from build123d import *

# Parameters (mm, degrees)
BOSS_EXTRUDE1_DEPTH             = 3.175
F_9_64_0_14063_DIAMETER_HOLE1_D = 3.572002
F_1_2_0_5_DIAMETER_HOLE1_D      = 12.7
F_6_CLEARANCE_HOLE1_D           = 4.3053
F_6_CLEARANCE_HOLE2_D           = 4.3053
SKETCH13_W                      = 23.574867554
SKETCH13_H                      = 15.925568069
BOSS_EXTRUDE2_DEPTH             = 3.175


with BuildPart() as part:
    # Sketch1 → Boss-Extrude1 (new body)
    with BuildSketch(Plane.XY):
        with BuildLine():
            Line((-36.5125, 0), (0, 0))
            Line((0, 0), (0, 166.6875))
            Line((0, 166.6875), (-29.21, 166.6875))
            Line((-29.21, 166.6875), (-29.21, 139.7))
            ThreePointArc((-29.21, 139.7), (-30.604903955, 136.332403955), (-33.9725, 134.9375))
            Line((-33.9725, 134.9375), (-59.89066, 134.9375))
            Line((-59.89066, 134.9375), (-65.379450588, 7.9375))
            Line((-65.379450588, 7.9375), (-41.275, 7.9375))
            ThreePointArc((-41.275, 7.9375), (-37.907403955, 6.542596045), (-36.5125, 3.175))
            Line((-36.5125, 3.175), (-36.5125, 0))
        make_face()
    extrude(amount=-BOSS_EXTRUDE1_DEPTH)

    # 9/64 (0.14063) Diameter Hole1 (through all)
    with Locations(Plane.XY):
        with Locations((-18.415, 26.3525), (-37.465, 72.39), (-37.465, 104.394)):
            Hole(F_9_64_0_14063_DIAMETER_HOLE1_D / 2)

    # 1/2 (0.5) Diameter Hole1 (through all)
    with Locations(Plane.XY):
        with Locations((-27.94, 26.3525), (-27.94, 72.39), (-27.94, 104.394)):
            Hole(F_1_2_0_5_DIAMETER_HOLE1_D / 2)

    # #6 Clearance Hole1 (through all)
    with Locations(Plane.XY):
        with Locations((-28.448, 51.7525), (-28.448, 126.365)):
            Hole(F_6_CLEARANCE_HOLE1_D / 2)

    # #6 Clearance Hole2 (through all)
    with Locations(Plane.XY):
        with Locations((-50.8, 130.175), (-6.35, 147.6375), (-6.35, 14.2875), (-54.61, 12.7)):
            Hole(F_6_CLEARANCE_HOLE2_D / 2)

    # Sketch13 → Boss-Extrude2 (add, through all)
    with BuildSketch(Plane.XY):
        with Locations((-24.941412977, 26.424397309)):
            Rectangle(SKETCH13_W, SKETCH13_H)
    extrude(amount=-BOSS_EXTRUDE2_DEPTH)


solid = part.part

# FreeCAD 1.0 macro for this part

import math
import FreeCAD as App
import Part
import Sketcher
Q = App.Units.Quantity

doc = App.newDocument("Part")
body = doc.addObject("PartDesign::Body", "Body")

sketch1 = body.newObject("Sketcher::SketchObject", "Sketch")
sketch1.AttachmentSupport = (doc.getObject("XY_Plane"), [""])
sketch1.MapMode = "FlatFace"
sketch1.addGeometry([
    Part.LineSegment(App.Vector(-36.5, 0, 0), App.Vector(0, 0, 0)),
    Part.LineSegment(App.Vector(0, 0, 0), App.Vector(0, 166.7, 0)),
    Part.LineSegment(App.Vector(0, 166.7, 0), App.Vector(-29.2, 166.7, 0)),
    Part.LineSegment(App.Vector(-29.2, 166.7, 0), App.Vector(-29.2, 139.7, 0)),
    Part.ArcOfCircle(Part.Circle(App.Vector(-34, 139.7, 0), App.Vector(0, 0, 1), 4.8), math.radians(-90), math.radians(0)),
    Part.LineSegment(App.Vector(-34, 134.9, 0), App.Vector(-59.9, 134.9, 0)),
    Part.LineSegment(App.Vector(-59.9, 134.9, 0), App.Vector(-65.4, 7.9, 0)),
    Part.LineSegment(App.Vector(-65.4, 7.9, 0), App.Vector(-41.3, 7.9, 0)),
    Part.ArcOfCircle(Part.Circle(App.Vector(-41.3, 3.2, 0), App.Vector(0, 0, 1), 4.8), math.radians(0), math.radians(90)),
    Part.LineSegment(App.Vector(-36.5, 3.2, 0), App.Vector(-36.5, 0, 0)),
], False)
sketch1.addConstraint([
    Sketcher.Constraint("Coincident", 0, 2, 1, 1),
    Sketcher.Constraint("Coincident", 1, 2, 2, 1),
    Sketcher.Constraint("Coincident", 2, 2, 3, 1),
    Sketcher.Constraint("Tangent", 3, 2, 4, 2),
    Sketcher.Constraint("Tangent", 4, 1, 5, 1),
    Sketcher.Constraint("Coincident", 5, 2, 6, 1),
    Sketcher.Constraint("Coincident", 6, 2, 7, 1),
    Sketcher.Constraint("Tangent", 7, 2, 8, 2),
    Sketcher.Constraint("Tangent", 8, 1, 9, 1),
    Sketcher.Constraint("Coincident", 9, 2, 0, 1),
    Sketcher.Constraint("Horizontal", 0),
    Sketcher.Constraint("Vertical", 1),
    Sketcher.Constraint("Horizontal", 2),
    Sketcher.Constraint("Vertical", 3),
    Sketcher.Constraint("Horizontal", 5),
    Sketcher.Constraint("Horizontal", 7),
    Sketcher.Constraint("Vertical", 9),
    Sketcher.Constraint("Coincident", 0, 2, -1, 1),
    Sketcher.Constraint("Equal", 4, 8),
    Sketcher.Constraint("Radius", 4, Q("0.1875 in")),
    Sketcher.Constraint("DistanceY", 6, 2, 5, 2, Q("5 in")),
    Sketcher.Constraint("DistanceX", 2, 2, 2, 1, Q("1.15 in")),
    Sketcher.Constraint("DistanceY", -1, 1, 4, 3, Q("5.5 in")),
    Sketcher.Constraint("DistanceX", 8, 1, 4, 1, Q("0.1 in")),
    Sketcher.Constraint("DistanceY", 1, 1, 1, 2, Q("6.5625 in")),
    Sketcher.Constraint("DistanceX", 5, 2, 5, 1, Q("1.0204 in")),
    Sketcher.Constraint("DistanceX", 7, 1, 7, 2, Q("24.104451 mm")),
])
pad1 = body.newObject("PartDesign::Pad", "Pad")
pad1.Profile = sketch1
pad1.Length = Q("0.125 in")
pad1.Reversed = True

sketch2 = body.newObject("Sketcher::SketchObject", "Sketch001")
sketch2.AttachmentSupport = (doc.getObject("XY_Plane"), [""])
sketch2.MapMode = "FlatFace"
sketch2.addGeometry([
    Part.Circle(App.Vector(-18.4, 26.4, 0), App.Vector(0, 0, 1), 1.8),
    Part.Circle(App.Vector(-37.5, 72.4, 0), App.Vector(0, 0, 1), 1.8),
    Part.Circle(App.Vector(-37.5, 104.4, 0), App.Vector(0, 0, 1), 1.8),
], False)
sketch2.addConstraint([
    Sketcher.Constraint("Equal", 0, 1),
    Sketcher.Constraint("Equal", 1, 2),
    Sketcher.Constraint("Vertical", 1, 3, 2, 3),
    Sketcher.Constraint("Diameter", 0, Q("3.572002 mm")),
    Sketcher.Constraint("DistanceY", -1, 1, 1, 3, Q("2.85 in")),
    Sketcher.Constraint("DistanceY", -1, 1, 2, 3, Q("4.11 in")),
    Sketcher.Constraint("DistanceX", 1, 3, 0, 3, Q("0.75 in")),
    Sketcher.Constraint("DistanceX", 0, 3, -1, 1, Q("0.725 in")),
    Sketcher.Constraint("DistanceY", 0, 3, 1, 3, Q("1.8125 in")),
])
doc.recompute()
hole = body.newObject("PartDesign::Hole", "Hole")
hole.Profile = sketch2
hole.ThreadType = "None"
hole.Diameter = 3.572002
hole.DepthType = "ThroughAll"

sketch3 = body.newObject("Sketcher::SketchObject", "Sketch002")
sketch3.AttachmentSupport = (doc.getObject("XY_Plane"), [""])
sketch3.MapMode = "FlatFace"
sketch3.addGeometry([
    Part.Circle(App.Vector(-28, 26, 0), App.Vector(0, 0, 1), 6),
    Part.Circle(App.Vector(-28, 72, 0), App.Vector(0, 0, 1), 6),
    Part.Circle(App.Vector(-28, 104, 0), App.Vector(0, 0, 1), 6),
], False)
sketch3.addConstraint([
    Sketcher.Constraint("Equal", 0, 1),
    Sketcher.Constraint("Equal", 1, 2),
    Sketcher.Constraint("Vertical", 0, 3, 1, 3),
    Sketcher.Constraint("Vertical", 1, 3, 2, 3),
    Sketcher.Constraint("Diameter", 0, Q("0.5 in")),
    Sketcher.Constraint("DistanceX", 0, 3, -1, 1, Q("1.1 in")),
    Sketcher.Constraint("DistanceY", -1, 1, 1, 3, Q("2.85 in")),
    Sketcher.Constraint("DistanceY", -1, 1, 2, 3, Q("4.11 in")),
    Sketcher.Constraint("DistanceY", 0, 3, 1, 3, Q("1.8125 in")),
])
doc.recompute()
hole2 = body.newObject("PartDesign::Hole", "Hole001")
hole2.Profile = sketch3
hole2.ThreadType = "None"
hole2.Diameter = Q("0.5 in")
hole2.DepthType = "ThroughAll"

sketch4 = body.newObject("Sketcher::SketchObject", "Sketch003")
sketch4.AttachmentSupport = (doc.getObject("XY_Plane"), [""])
sketch4.MapMode = "FlatFace"
sketch4.addGeometry([
    Part.Circle(App.Vector(-28.4, 51.8, 0), App.Vector(0, 0, 1), 2.2),
    Part.Circle(App.Vector(-28.4, 126.4, 0), App.Vector(0, 0, 1), 2.2),
], False)
sketch4.addConstraint([
    Sketcher.Constraint("Equal", 0, 1),
    Sketcher.Constraint("Vertical", 0, 3, 1, 3),
    Sketcher.Constraint("Diameter", 0, Q("0.1695 in")),
    Sketcher.Constraint("DistanceX", 0, 3, -1, 1, Q("1.12 in")),
    Sketcher.Constraint("DistanceY", -1, 1, 1, 3, Q("4.975 in")),
    Sketcher.Constraint("DistanceY", 0, 3, 1, 3, Q("2.9375 in")),
])
doc.recompute()
hole3 = body.newObject("PartDesign::Hole", "Hole002")
hole3.Profile = sketch4
hole3.ThreadType = "None"
hole3.Diameter = Q("0.1695 in")
hole3.DepthType = "ThroughAll"

sketch5 = body.newObject("Sketcher::SketchObject", "Sketch004")
sketch5.AttachmentSupport = (doc.getObject("XY_Plane"), [""])
sketch5.MapMode = "FlatFace"
sketch5.addGeometry([
    Part.Circle(App.Vector(-50.8, 130.2, 0), App.Vector(0, 0, 1), 2.2),
    Part.Circle(App.Vector(-6.3, 147.6, 0), App.Vector(0, 0, 1), 2.2),
    Part.Circle(App.Vector(-6.3, 14.3, 0), App.Vector(0, 0, 1), 2.2),
    Part.Circle(App.Vector(-54.6, 12.7, 0), App.Vector(0, 0, 1), 2.2),
], False)
sketch5.addConstraint([
    Sketcher.Constraint("Equal", 0, 1),
    Sketcher.Constraint("Equal", 1, 2),
    Sketcher.Constraint("Equal", 2, 3),
    Sketcher.Constraint("Vertical", 1, 3, 2, 3),
    Sketcher.Constraint("DistanceX", 0, 3, -1, 1, Q("2 in")),
    Sketcher.Constraint("Diameter", 0, Q("0.1695 in")),
    Sketcher.Constraint("DistanceY", -1, 1, 3, 3, Q("0.5 in")),
    Sketcher.Constraint("DistanceX", 3, 3, 2, 3, Q("1.9 in")),
    Sketcher.Constraint("DistanceX", 1, 3, -1, 1, Q("0.25 in")),
    Sketcher.Constraint("DistanceY", 2, 3, 1, 3, Q("5.25 in")),
    Sketcher.Constraint("DistanceY", -1, 1, 0, 3, Q("5.125 in")),
    Sketcher.Constraint("DistanceY", -1, 1, 1, 3, Q("5.8125 in")),
])
doc.recompute()
hole4 = body.newObject("PartDesign::Hole", "Hole003")
hole4.Profile = sketch5
hole4.ThreadType = "None"
hole4.Diameter = Q("0.1695 in")
hole4.DepthType = "ThroughAll"

sketch6 = body.newObject("Sketcher::SketchObject", "Sketch005")
sketch6.AttachmentSupport = (doc.getObject("XY_Plane"), [""])
sketch6.MapMode = "FlatFace"
sketch6.addGeometry([
    Part.LineSegment(App.Vector(-37, 34, 0), App.Vector(-37, 18, 0)),
    Part.LineSegment(App.Vector(-37, 18, 0), App.Vector(-13, 18, 0)),
    Part.LineSegment(App.Vector(-13, 18, 0), App.Vector(-13, 34, 0)),
    Part.LineSegment(App.Vector(-13, 34, 0), App.Vector(-37, 34, 0)),
], False)
sketch6.addConstraint([
    Sketcher.Constraint("Coincident", 0, 2, 1, 1),
    Sketcher.Constraint("Coincident", 1, 2, 2, 1),
    Sketcher.Constraint("Coincident", 2, 2, 3, 1),
    Sketcher.Constraint("Coincident", 3, 2, 0, 1),
    Sketcher.Constraint("Vertical", 0),
    Sketcher.Constraint("Horizontal", 1),
    Sketcher.Constraint("Vertical", 2),
    Sketcher.Constraint("Horizontal", 3),
    Sketcher.Constraint("DistanceY", 0, 2, 0, 1, Q("15.925568 mm")),
    Sketcher.Constraint("DistanceX", 1, 1, 1, 2, Q("23.574868 mm")),
    Sketcher.Constraint("DistanceX", 1, 2, -1, 1, Q("13.153979 mm")),
    Sketcher.Constraint("DistanceY", -1, 1, 2, 2, Q("34.387181 mm")),
])
pad2 = body.newObject("PartDesign::Pad", "Pad001")
pad2.Profile = sketch6
pad2.Length = Q("0.125 in")
pad2.Reversed = True

doc.recompute()
